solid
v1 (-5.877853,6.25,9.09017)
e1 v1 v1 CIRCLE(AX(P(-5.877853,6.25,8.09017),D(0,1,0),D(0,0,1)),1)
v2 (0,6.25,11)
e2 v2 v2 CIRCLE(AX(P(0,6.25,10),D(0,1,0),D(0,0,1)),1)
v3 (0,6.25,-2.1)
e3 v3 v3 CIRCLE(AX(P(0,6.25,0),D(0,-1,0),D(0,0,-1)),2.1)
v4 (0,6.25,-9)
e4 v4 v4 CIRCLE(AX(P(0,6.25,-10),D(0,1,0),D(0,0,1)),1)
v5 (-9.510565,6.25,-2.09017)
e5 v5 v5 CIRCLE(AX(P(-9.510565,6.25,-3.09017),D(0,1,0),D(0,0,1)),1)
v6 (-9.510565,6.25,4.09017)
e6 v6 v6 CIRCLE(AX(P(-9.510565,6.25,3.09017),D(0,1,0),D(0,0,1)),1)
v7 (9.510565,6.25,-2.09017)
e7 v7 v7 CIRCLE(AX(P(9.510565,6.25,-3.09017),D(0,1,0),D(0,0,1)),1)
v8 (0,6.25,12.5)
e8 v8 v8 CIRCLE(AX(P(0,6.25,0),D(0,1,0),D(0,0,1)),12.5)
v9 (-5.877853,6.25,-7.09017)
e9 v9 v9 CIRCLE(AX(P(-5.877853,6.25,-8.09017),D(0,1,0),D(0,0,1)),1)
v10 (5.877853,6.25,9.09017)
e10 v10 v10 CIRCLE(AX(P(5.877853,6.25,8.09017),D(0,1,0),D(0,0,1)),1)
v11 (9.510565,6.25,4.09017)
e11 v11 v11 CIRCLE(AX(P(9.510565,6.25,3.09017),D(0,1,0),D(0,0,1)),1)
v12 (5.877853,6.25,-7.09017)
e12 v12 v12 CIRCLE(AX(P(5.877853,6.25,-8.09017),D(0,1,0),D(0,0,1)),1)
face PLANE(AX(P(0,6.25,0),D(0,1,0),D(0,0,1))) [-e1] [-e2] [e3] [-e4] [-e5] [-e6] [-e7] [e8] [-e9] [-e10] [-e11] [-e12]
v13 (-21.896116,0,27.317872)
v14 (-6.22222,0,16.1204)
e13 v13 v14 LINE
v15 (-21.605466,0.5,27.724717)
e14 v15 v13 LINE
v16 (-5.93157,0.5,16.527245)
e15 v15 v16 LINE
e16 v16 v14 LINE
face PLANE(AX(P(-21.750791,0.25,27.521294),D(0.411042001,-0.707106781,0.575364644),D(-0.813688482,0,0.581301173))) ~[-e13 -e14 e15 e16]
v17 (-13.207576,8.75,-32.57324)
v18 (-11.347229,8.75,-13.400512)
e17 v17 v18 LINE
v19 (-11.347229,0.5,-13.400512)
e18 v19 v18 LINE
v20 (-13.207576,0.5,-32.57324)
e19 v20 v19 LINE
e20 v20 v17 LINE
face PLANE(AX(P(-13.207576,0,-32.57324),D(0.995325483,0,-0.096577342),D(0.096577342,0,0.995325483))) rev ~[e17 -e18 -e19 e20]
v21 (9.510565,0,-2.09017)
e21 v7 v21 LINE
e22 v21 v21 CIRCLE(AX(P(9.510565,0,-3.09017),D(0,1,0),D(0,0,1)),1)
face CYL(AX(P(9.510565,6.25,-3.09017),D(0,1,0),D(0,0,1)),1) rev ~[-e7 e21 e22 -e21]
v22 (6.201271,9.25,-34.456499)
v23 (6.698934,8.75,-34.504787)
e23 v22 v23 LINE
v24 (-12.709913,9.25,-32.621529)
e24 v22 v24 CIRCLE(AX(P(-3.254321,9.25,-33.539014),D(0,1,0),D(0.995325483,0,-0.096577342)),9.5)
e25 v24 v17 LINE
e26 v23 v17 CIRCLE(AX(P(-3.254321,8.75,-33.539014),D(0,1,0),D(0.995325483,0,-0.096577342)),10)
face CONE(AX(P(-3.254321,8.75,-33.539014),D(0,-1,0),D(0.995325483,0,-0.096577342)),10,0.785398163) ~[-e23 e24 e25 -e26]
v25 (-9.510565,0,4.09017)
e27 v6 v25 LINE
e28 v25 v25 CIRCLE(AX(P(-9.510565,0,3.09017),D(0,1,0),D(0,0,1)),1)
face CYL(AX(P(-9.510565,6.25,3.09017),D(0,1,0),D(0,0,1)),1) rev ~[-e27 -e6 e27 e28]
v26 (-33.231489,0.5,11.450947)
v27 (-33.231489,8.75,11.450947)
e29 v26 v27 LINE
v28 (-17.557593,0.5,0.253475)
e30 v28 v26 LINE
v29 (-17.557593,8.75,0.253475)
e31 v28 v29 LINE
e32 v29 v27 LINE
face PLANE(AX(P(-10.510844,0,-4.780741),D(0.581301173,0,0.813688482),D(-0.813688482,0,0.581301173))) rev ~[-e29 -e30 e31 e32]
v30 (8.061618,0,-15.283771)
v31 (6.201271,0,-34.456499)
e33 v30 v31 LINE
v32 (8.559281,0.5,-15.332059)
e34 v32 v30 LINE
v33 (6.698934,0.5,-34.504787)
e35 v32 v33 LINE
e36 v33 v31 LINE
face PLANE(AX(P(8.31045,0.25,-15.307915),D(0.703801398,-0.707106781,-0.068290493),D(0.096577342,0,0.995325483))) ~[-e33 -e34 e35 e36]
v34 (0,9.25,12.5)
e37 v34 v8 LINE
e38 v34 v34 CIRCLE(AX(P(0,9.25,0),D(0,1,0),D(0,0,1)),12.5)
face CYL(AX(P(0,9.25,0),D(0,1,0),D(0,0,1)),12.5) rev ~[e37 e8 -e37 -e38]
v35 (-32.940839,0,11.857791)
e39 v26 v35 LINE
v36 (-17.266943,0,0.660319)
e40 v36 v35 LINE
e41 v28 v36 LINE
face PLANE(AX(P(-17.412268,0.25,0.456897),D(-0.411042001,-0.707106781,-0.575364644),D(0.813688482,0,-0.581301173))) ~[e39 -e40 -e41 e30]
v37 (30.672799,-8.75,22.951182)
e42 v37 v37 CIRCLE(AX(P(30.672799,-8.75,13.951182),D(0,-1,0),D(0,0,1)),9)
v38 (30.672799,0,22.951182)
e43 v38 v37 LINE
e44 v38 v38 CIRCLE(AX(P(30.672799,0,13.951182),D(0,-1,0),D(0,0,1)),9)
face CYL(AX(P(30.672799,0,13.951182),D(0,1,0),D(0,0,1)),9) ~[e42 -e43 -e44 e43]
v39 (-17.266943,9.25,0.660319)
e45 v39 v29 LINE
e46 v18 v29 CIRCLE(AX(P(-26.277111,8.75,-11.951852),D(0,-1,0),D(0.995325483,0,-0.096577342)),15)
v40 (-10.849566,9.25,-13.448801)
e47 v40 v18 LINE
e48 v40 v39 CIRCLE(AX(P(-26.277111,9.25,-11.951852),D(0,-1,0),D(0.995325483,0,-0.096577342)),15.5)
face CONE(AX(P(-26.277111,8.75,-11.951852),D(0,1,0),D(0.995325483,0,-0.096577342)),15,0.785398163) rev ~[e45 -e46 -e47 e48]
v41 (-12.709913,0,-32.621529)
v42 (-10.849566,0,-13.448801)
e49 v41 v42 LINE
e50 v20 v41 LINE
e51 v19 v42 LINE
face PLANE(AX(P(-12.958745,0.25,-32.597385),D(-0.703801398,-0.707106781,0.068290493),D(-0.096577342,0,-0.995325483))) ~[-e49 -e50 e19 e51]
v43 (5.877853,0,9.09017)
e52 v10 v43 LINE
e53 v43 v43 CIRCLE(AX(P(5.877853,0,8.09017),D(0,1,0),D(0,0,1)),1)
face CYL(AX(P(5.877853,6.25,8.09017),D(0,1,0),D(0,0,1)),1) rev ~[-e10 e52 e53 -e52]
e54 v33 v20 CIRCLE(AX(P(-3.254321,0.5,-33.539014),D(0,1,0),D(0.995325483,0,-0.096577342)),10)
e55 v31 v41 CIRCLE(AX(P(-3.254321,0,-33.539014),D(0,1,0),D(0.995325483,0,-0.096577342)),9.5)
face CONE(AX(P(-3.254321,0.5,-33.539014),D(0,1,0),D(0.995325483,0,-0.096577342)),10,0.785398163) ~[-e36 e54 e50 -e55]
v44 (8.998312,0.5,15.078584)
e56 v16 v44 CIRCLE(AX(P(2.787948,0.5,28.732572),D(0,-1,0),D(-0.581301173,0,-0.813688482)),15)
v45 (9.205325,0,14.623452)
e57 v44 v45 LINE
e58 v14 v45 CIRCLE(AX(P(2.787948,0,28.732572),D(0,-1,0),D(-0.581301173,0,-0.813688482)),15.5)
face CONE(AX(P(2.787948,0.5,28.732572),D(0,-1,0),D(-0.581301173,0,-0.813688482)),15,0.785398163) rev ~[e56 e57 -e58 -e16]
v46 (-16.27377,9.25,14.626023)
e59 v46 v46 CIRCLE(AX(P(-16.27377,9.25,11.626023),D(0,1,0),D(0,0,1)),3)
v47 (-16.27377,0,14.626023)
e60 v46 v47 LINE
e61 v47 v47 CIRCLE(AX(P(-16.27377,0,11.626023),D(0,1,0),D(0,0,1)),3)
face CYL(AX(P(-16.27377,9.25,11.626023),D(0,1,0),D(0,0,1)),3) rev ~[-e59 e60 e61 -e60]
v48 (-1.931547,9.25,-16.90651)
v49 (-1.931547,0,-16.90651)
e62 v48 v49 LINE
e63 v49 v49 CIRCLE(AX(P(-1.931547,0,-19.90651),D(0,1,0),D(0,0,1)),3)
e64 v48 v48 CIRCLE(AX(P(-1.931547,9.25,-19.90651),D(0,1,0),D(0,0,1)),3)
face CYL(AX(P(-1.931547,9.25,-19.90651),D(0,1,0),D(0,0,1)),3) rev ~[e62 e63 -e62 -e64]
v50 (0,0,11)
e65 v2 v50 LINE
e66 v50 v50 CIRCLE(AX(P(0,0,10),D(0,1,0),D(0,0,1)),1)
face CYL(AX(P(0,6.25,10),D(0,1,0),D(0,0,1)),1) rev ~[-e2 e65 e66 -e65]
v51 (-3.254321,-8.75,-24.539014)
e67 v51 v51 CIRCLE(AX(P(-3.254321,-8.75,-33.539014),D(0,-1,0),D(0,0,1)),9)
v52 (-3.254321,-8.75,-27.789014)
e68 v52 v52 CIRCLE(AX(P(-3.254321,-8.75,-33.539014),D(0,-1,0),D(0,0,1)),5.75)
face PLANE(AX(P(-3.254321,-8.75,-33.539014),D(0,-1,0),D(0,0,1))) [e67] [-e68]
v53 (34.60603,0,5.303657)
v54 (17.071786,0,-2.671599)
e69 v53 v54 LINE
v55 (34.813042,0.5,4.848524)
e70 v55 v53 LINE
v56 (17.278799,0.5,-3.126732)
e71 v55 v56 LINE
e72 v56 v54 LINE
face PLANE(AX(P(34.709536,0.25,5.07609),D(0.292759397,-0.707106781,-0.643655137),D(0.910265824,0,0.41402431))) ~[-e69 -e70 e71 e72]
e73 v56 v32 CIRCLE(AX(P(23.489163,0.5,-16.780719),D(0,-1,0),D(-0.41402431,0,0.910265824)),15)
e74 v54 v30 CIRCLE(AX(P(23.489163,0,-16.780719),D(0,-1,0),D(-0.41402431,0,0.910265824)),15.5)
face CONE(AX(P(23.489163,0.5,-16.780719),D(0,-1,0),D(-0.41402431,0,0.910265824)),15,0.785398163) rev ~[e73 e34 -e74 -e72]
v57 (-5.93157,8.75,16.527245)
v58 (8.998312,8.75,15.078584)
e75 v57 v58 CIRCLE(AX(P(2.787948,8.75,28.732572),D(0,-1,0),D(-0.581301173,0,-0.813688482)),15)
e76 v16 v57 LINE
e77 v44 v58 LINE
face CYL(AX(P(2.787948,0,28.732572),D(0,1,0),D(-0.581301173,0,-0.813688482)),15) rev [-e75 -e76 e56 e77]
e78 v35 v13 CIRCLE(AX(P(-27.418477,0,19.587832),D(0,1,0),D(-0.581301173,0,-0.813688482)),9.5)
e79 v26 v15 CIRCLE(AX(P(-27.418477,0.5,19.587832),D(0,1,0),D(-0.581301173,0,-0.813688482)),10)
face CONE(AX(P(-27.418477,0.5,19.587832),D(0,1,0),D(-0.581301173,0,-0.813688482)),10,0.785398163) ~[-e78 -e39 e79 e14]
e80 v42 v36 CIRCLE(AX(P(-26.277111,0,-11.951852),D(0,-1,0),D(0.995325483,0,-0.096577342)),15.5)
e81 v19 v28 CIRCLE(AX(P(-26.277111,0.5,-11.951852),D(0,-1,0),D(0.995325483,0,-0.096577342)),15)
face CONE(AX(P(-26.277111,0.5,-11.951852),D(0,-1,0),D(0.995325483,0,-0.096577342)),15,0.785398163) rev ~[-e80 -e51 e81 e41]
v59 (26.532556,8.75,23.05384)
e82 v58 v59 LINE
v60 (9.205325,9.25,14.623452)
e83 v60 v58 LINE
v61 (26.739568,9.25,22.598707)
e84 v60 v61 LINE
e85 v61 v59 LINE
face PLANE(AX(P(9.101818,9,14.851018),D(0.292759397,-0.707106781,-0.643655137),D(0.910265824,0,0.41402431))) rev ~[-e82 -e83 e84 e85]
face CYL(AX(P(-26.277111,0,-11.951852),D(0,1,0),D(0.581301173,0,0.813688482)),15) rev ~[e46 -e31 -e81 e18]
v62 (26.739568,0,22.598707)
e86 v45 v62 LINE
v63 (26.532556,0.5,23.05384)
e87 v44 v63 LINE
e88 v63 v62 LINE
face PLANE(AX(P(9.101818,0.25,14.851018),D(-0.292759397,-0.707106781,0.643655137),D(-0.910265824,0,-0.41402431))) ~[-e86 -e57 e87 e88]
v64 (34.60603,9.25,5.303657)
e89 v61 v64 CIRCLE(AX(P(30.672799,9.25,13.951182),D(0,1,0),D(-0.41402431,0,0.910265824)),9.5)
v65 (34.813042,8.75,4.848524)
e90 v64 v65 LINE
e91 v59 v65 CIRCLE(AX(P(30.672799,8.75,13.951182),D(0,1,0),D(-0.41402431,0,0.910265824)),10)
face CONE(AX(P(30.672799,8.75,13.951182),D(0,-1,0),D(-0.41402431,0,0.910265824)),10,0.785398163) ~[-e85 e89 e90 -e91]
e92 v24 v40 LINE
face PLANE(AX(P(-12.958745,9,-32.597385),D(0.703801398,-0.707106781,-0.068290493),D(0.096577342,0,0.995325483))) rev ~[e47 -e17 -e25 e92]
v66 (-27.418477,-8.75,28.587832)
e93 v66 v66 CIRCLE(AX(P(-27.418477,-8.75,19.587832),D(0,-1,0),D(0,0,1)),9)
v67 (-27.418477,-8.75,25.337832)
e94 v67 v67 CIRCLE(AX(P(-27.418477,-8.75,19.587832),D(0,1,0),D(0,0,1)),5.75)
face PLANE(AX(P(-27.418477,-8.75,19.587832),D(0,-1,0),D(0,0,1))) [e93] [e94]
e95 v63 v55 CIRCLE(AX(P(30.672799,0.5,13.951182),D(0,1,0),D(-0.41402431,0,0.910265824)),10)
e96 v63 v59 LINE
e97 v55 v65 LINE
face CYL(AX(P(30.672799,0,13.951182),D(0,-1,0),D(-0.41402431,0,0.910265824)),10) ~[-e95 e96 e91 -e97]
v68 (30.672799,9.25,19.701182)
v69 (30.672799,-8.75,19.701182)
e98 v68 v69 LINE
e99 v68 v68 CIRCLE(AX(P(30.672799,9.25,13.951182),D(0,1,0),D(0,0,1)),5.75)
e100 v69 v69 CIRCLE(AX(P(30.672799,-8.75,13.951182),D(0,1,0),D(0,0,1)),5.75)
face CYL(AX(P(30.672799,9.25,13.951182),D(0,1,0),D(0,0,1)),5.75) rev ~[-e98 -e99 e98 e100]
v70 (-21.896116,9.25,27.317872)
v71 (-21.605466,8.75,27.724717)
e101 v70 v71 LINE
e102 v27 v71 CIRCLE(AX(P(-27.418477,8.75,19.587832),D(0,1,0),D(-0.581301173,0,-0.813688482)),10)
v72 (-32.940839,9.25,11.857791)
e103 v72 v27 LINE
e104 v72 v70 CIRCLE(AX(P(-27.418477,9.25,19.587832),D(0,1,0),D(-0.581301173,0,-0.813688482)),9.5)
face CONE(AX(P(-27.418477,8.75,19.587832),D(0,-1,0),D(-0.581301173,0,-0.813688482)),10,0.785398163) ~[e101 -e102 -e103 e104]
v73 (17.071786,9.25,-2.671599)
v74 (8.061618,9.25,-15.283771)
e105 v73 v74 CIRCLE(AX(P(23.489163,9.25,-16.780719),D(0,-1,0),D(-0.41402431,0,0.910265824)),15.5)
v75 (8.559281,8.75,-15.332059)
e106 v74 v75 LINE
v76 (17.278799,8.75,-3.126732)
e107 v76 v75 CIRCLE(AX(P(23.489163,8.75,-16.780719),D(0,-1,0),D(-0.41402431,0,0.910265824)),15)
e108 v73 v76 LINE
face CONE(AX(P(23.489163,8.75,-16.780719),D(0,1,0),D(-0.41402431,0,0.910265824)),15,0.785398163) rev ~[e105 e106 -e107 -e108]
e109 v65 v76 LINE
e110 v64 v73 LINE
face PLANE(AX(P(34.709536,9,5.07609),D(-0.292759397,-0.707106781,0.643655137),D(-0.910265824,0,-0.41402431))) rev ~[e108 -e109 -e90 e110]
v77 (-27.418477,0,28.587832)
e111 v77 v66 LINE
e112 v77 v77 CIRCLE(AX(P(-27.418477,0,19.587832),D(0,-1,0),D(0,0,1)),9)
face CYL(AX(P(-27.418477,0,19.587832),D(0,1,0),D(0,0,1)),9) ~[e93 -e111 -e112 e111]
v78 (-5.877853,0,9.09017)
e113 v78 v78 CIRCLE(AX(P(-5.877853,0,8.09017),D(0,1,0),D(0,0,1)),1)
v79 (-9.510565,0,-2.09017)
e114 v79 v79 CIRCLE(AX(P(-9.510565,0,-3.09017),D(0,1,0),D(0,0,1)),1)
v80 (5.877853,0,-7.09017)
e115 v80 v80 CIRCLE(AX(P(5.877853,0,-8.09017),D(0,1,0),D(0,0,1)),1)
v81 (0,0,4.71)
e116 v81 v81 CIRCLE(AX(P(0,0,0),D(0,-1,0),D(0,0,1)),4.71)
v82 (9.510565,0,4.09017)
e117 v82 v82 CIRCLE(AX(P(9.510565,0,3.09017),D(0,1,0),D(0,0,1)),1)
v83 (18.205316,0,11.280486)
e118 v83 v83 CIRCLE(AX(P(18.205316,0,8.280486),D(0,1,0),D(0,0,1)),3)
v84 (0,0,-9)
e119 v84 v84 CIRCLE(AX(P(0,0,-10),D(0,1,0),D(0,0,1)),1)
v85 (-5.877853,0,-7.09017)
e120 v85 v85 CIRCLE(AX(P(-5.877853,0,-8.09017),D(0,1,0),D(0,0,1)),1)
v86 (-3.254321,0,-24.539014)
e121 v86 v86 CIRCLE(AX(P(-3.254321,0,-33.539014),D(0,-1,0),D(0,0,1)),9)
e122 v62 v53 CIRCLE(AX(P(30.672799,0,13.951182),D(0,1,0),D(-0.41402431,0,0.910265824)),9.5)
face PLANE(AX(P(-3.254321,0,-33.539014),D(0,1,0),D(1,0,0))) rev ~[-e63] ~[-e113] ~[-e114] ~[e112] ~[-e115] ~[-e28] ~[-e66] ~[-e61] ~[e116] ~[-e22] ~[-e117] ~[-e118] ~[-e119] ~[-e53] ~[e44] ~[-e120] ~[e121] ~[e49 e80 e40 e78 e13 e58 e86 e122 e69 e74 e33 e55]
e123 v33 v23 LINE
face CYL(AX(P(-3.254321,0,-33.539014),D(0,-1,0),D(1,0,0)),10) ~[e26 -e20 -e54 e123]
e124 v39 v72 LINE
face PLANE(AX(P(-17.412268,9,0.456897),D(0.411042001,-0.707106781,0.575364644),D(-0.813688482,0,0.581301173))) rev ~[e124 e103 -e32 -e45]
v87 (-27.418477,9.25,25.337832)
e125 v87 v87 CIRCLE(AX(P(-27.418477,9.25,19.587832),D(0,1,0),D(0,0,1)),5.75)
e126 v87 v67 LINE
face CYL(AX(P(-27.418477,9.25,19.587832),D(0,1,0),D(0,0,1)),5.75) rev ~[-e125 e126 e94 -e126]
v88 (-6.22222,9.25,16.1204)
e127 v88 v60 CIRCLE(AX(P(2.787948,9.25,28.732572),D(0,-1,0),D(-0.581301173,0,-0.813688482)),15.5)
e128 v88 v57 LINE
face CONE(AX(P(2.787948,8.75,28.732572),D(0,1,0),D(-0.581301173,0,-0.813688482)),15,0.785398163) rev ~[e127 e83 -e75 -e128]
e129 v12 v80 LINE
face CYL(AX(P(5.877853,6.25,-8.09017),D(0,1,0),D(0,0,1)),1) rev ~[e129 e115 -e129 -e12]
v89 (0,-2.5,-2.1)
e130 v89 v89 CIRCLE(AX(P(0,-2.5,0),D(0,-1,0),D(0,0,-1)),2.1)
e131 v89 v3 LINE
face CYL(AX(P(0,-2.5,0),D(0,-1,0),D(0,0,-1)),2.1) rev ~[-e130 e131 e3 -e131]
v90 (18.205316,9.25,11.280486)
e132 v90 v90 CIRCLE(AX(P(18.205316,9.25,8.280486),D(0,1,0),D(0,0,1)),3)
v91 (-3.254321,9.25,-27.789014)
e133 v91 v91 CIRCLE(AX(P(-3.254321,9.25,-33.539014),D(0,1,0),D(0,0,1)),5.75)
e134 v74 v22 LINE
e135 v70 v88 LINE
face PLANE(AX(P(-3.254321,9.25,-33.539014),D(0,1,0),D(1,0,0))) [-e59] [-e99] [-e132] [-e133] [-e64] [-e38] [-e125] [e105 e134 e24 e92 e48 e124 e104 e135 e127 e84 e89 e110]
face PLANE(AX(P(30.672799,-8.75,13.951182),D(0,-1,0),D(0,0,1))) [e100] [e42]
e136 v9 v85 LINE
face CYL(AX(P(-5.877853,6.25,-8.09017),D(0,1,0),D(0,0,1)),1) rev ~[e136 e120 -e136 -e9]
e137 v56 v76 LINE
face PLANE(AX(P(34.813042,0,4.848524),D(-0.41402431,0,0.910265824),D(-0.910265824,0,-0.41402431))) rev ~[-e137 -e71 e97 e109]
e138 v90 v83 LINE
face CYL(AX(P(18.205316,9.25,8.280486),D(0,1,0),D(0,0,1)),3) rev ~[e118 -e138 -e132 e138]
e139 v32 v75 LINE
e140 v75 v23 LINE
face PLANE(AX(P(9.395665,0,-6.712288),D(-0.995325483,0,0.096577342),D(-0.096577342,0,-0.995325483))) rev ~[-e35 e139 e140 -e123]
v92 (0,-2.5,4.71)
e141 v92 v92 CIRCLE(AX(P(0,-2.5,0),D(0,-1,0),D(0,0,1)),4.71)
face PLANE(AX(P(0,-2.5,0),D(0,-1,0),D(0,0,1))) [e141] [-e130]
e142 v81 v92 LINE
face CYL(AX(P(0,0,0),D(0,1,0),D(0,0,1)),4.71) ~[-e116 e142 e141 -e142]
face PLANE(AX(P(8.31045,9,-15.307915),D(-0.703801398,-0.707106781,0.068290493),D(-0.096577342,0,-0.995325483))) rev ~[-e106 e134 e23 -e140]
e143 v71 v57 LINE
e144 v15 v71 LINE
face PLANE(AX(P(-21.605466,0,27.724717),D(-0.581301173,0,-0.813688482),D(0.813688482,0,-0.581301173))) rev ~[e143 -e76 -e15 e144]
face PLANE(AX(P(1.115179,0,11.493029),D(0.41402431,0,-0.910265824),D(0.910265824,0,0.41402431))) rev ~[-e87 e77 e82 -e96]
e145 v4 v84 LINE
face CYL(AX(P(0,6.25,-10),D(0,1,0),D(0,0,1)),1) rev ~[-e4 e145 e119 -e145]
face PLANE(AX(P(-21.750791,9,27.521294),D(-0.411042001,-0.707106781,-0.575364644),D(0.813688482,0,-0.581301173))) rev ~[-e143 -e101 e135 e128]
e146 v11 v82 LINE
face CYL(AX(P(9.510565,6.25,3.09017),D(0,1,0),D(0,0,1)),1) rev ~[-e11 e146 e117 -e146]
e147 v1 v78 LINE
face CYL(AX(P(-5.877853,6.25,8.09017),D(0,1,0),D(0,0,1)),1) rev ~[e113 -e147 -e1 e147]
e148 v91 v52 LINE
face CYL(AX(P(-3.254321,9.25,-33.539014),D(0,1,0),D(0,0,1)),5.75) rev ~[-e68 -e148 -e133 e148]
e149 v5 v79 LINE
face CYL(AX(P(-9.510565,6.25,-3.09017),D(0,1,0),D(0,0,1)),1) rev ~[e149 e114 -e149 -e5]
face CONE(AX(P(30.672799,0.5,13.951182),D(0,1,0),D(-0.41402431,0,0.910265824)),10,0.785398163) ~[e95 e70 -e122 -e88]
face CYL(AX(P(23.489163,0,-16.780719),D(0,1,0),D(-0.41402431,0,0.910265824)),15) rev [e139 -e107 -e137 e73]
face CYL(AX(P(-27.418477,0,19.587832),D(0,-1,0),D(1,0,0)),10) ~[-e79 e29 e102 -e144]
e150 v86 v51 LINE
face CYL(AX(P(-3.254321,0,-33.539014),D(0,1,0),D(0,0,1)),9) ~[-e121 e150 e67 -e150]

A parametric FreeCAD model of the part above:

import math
import FreeCAD as App
import Part
import Sketcher
from FreeCAD import Vector


def edges_at(feature, points):
    """Names of the edges that pass closest to the given points."""
    edges = feature.Shape.Edges
    near = lambda p: min(range(len(edges)), key=lambda i: edges[i].distToShape(Part.Vertex(*p))[0])
    return sorted({f"Edge{near(p) + 1}" for p in points})

doc = App.newDocument("Part")
body = doc.addObject("PartDesign::Body", "Body")

# Sketch on XZ plane
sketch1 = body.newObject("Sketcher::SketchObject", "Sketch")
sketch1.AttachmentSupport = (doc.getObject("XZ_Plane"), [""])
sketch1.MapMode = "FlatFace"
sketch1.addGeometry([
    Part.ArcOfCircle(Part.Circle(Vector(-3.254321, -33.539014, 0), Vector(0, 0, 1), 10), math.radians(174.457888), math.radians(354.457888)),  # 0
    Part.LineSegment(Vector(-13.207576, -32.57324, 0), Vector(-10.510844, -4.780741, 0)),  # 1
    Part.LineSegment(Vector(-10.510844, -4.780741, 0), Vector(-33.231489, 11.450947, 0)),  # 2
    Part.ArcOfCircle(Part.Circle(Vector(-27.418477, 19.587832, 0), Vector(0, 0, 1), 10), math.radians(54.457888), math.radians(234.457888)),  # 3
    Part.LineSegment(Vector(-21.605466, 27.724717, 0), Vector(1.115179, 11.493029, 0)),  # 4
    Part.LineSegment(Vector(1.115179, 11.493029, 0), Vector(26.532556, 23.05384, 0)),  # 5
    Part.ArcOfCircle(Part.Circle(Vector(30.672799, 13.951182, 0), Vector(0, 0, 1), 10), math.radians(-65.542112), math.radians(114.457888)),  # 6
    Part.LineSegment(Vector(34.813042, 4.848524, 0), Vector(9.395665, -6.712288, 0)),  # 7
    Part.LineSegment(Vector(9.395665, -6.712288, 0), Vector(6.698934, -34.504787, 0)),  # 8
], False)
sketch1.addConstraint([
    Sketcher.Constraint("Tangent", 0, 1, 1, 1),
    Sketcher.Constraint("Coincident", 1, 2, 2, 1),
    Sketcher.Constraint("Tangent", 2, 2, 3, 2),
    Sketcher.Constraint("Tangent", 3, 1, 4, 1),
    Sketcher.Constraint("Coincident", 4, 2, 5, 1),
    Sketcher.Constraint("Tangent", 5, 2, 6, 2),
    Sketcher.Constraint("Tangent", 6, 1, 7, 1),
    Sketcher.Constraint("Coincident", 7, 2, 8, 1),
    Sketcher.Constraint("Tangent", 8, 2, 0, 2),
    Sketcher.Constraint("Equal", 0, 3),
    Sketcher.Constraint("Equal", 3, 6),
    Sketcher.Constraint("Parallel", 2, 4),
    Sketcher.Constraint("Parallel", 5, 7),
    Sketcher.Constraint("Parallel", 1, 8),
    Sketcher.Constraint("Equal", 1, 2),
    Sketcher.Constraint("Equal", 2, 4),
    Sketcher.Constraint("Equal", 4, 5),
    Sketcher.Constraint("Equal", 5, 7),
    Sketcher.Constraint("Equal", 7, 8),
    Sketcher.Constraint("Radius", 0, 10.0),
    Sketcher.Constraint("DistanceX", -1, 1, 6, 3, 30.672799),
    Sketcher.Constraint("DistanceX", 3, 3, 0, 1, 14.210901),
    Sketcher.Constraint("DistanceY", 0, 1, 1, 2, 27.792499),
    Sketcher.Constraint("DistanceY", -1, 1, 3, 3, 19.587832),
])
pad1 = body.newObject("PartDesign::Pad", "Pad")
pad1.Profile = sketch1
pad1.Length = 9.25
pad1.Reversed = True

# Sketch on XZ plane
sketch2 = body.newObject("Sketcher::SketchObject", "Sketch001")
sketch2.AttachmentSupport = (doc.getObject("XZ_Plane"), [""])
sketch2.MapMode = "FlatFace"
sketch2.AttachmentOffset = App.Placement(Vector(0, 0, -9.25), App.Rotation())
sketch2.addGeometry(Part.Circle(Vector(-27.418477, 19.587832, 0), Vector(0, 0, 1), 4.5), False)
sketch2.addConstraint([
    Sketcher.Constraint("Diameter", 0, 9.0),
    Sketcher.Constraint("DistanceY", -1, 1, 0, 3, 19.587832),
    Sketcher.Constraint("DistanceX", 0, 3, -1, 1, 27.418477),
])
pocket1 = body.newObject("PartDesign::Pocket", "Pocket")
pocket1.Profile = sketch2
pocket1.Type = "UpToFirst"
pocket1.Reversed = True

# Sketch on XZ plane
sketch3 = body.newObject("Sketcher::SketchObject", "Sketch002")
sketch3.AttachmentSupport = (doc.getObject("XZ_Plane"), [""])
sketch3.MapMode = "FlatFace"
sketch3.AttachmentOffset = App.Placement(Vector(0, 0, -9.25), App.Rotation())
sketch3.addGeometry(Part.Circle(Vector(-3.254321, -33.539014, 0), Vector(0, 0, 1), 4.5), False)
sketch3.addConstraint([
    Sketcher.Constraint("Diameter", 0, 9.0),
    Sketcher.Constraint("DistanceX", 0, 3, -1, 1, 3.254321),
    Sketcher.Constraint("DistanceY", 0, 3, -1, 1, 33.539014),
])
pocket2 = body.newObject("PartDesign::Pocket", "Pocket001")
pocket2.Profile = sketch3
pocket2.Type = "UpToFirst"
pocket2.Reversed = True

# Sketch on XZ plane
sketch4 = body.newObject("Sketcher::SketchObject", "Sketch003")
sketch4.AttachmentSupport = (doc.getObject("XZ_Plane"), [""])
sketch4.MapMode = "FlatFace"
sketch4.AttachmentOffset = App.Placement(Vector(0, 0, -9.25), App.Rotation())
sketch4.addGeometry(Part.Circle(Vector(30.672799, 13.951182, 0), Vector(0, 0, 1), 4.5), False)
sketch4.addConstraint([
    Sketcher.Constraint("Diameter", 0, 9.0),
    Sketcher.Constraint("DistanceX", -1, 1, 0, 3, 30.672799),
    Sketcher.Constraint("DistanceY", -1, 1, 0, 3, 13.951182),
])
pocket3 = body.newObject("PartDesign::Pocket", "Pocket002")
pocket3.Profile = sketch4
pocket3.Type = "UpToFirst"
pocket3.Reversed = True

# Sketch on XZ plane
sketch5 = body.newObject("Sketcher::SketchObject", "Sketch004")
sketch5.AttachmentSupport = (doc.getObject("XZ_Plane"), [""])
sketch5.MapMode = "FlatFace"
sketch5.addGeometry([
    Part.Circle(Vector(-3.254321, -33.539014, 0), Vector(0, 0, 1), 9),
    Part.Circle(Vector(-27.418477, 19.587832, 0), Vector(0, 0, 1), 9),
    Part.Circle(Vector(30.672799, 13.951182, 0), Vector(0, 0, 1), 9),
], False)
sketch5.addConstraint([
    Sketcher.Constraint("Equal", 0, 1),
    Sketcher.Constraint("Equal", 1, 2),
    Sketcher.Constraint("Diameter", 0, 18.0),
    Sketcher.Constraint("DistanceX", -1, 1, 2, 3, 30.672799),
    Sketcher.Constraint("DistanceX", 0, 3, -1, 1, 3.254321),
    Sketcher.Constraint("DistanceY", -1, 1, 1, 3, 19.587832),
    Sketcher.Constraint("DistanceY", 2, 3, 1, 3, 5.63665),
    Sketcher.Constraint("DistanceY", 0, 3, -1, 1, 33.539014),
    Sketcher.Constraint("DistanceX", 1, 3, -1, 1, 27.418477),
])
pad2 = body.newObject("PartDesign::Pad", "Pad001")
pad2.Profile = sketch5
pad2.Length = 9.5

# Sketch on XZ plane
sketch6 = body.newObject("Sketcher::SketchObject", "Sketch005")
sketch6.AttachmentSupport = (doc.getObject("XZ_Plane"), [""])
sketch6.MapMode = "FlatFace"
sketch6.addGeometry(Part.Circle(Vector(-3.254321, -33.539014, 0), Vector(0, 0, 1), 4.5), False)
sketch6.addConstraint([
    Sketcher.Constraint("Diameter", 0, 9.0),
    Sketcher.Constraint("DistanceX", 0, 3, -1, 1, 3.254321),
    Sketcher.Constraint("DistanceY", 0, 3, -1, 1, 33.539014),
])
pocket4 = body.newObject("PartDesign::Pocket", "Pocket003")
pocket4.Profile = sketch6
pocket4.Type = "UpToFirst"
pocket4.Reversed = True

# Sketch on XZ plane
sketch7 = body.newObject("Sketcher::SketchObject", "Sketch006")
sketch7.AttachmentSupport = (doc.getObject("XZ_Plane"), [""])
sketch7.MapMode = "FlatFace"
sketch7.addGeometry(Part.Circle(Vector(30.672799, 13.951182, 0), Vector(0, 0, 1), 4.5), False)
sketch7.addConstraint([
    Sketcher.Constraint("Diameter", 0, 9.0),
    Sketcher.Constraint("DistanceX", -1, 1, 0, 3, 30.672799),
    Sketcher.Constraint("DistanceY", -1, 1, 0, 3, 13.951182),
])
pocket5 = body.newObject("PartDesign::Pocket", "Pocket004")
pocket5.Profile = sketch7
pocket5.Type = "UpToFirst"
pocket5.Reversed = True

# Sketch on XZ plane
sketch8 = body.newObject("Sketcher::SketchObject", "Sketch007")
sketch8.AttachmentSupport = (doc.getObject("XZ_Plane"), [""])
sketch8.MapMode = "FlatFace"
sketch8.addGeometry(Part.Circle(Vector(-27.418477, 19.587832, 0), Vector(0, 0, 1), 4.5), False)
sketch8.addConstraint([
    Sketcher.Constraint("Diameter", 0, 9.0),
    Sketcher.Constraint("DistanceY", -1, 1, 0, 3, 19.587832),
    Sketcher.Constraint("DistanceX", 0, 3, -1, 1, 27.418477),
])
pocket6 = body.newObject("PartDesign::Pocket", "Pocket005")
pocket6.Profile = sketch8
pocket6.Type = "UpToFirst"
pocket6.Reversed = True
doc.recompute()

fillet = body.newObject("PartDesign::Fillet", "Fillet")
fillet.Base = (pocket6, edges_at(pocket6, [(9.396, 4.625, -6.712), (1.115, 4.625, 11.493), (-10.511, 4.625, -4.781)]))
fillet.Radius = 15

# Sketch on XZ plane
sketch9 = body.newObject("Sketcher::SketchObject", "Sketch008")
sketch9.AttachmentSupport = (doc.getObject("XZ_Plane"), [""])
sketch9.MapMode = "FlatFace"
sketch9.AttachmentOffset = App.Placement(Vector(0, 0, -9.25), App.Rotation())
sketch9.addGeometry(Part.Circle(Vector(0, 0, 0), Vector(0, 0, 1), 12.5), False)
sketch9.addConstraint([
    Sketcher.Constraint("Coincident", 0, 3, -1, 1),
    Sketcher.Constraint("Diameter", 0, 25.0),
])
pocket7 = body.newObject("PartDesign::Pocket", "Pocket006")
pocket7.Profile = sketch9
pocket7.Length = 3
pocket7.Reversed = True
doc.recompute()

chamfer = body.newObject("PartDesign::Chamfer", "Chamfer")
chamfer.Base = (pocket7, edges_at(pocket7, [
    (-12.277, 9.25, -22.987),
    (-25.395, 9.25, 5.852),
    (-35.555, 9.25, 25.401),
    (-13.769, 9.25, 22.126),
    (17.765, 9.25, 19.066),
    (39.775, 9.25, 18.091),
    (26.046, 9.25, 0.861),
    (7.629, 9.25, -24.918),
    (-4.22, 9.25, -43.492),
    (11.284, 9.25, -8.061),
    (1.339, 9.25, 13.803),
    (-12.623, 9.25, -5.741),
]))
chamfer.Size = 0.5
doc.recompute()

chamfer2 = body.newObject("PartDesign::Chamfer", "Chamfer001")
chamfer2.Base = (chamfer, edges_at(chamfer, [
    (39.775, 0, 18.091),
    (17.765, 0, 19.066),
    (-13.769, 0, 22.126),
    (-35.555, 0, 25.401),
    (-25.395, 0, 5.852),
    (-12.277, 0, -22.987),
    (-4.22, 0, -43.492),
    (7.629, 0, -24.918),
    (11.284, 0, -8.061),
    (1.339, 0, 13.803),
    (-12.623, 0, -5.741),
    (26.046, 0, 0.861),
]))
chamfer2.Size = 0.5

# Sketch on XZ plane
sketch10 = body.newObject("Sketcher::SketchObject", "Sketch009")
sketch10.AttachmentSupport = (doc.getObject("XZ_Plane"), [""])
sketch10.MapMode = "FlatFace"
sketch10.addGeometry(Part.Circle(Vector(0, 0, 0), Vector(0, 0, 1), 4.71), False)
sketch10.addConstraint([
    Sketcher.Constraint("Coincident", 0, 3, -1, 1),
    Sketcher.Constraint("Diameter", 0, 9.42),
])
pad3 = body.newObject("PartDesign::Pad", "Pad002")
pad3.Profile = sketch10
pad3.Length = 2.5

# Sketch on XZ plane
sketch11 = body.newObject("Sketcher::SketchObject", "Sketch010")
sketch11.AttachmentSupport = (doc.getObject("XZ_Plane"), [""])
sketch11.MapMode = "FlatFace"
sketch11.AttachmentOffset = App.Placement(Vector(0, 0, -6.25), App.Rotation())
sketch11.addGeometry(Part.Circle(Vector(0, -10, 0), Vector(0, 0, 1), 1), False)
sketch11.addConstraint([
    Sketcher.Constraint("PointOnObject", 0, 3, -2),
    Sketcher.Constraint("Diameter", 0, 2.0),
    Sketcher.Constraint("DistanceY", 0, 3, -1, 1, 10.0),
])
pocket8 = body.newObject("PartDesign::Pocket", "Pocket007")
pocket8.Profile = sketch11
pocket8.Type = "UpToFirst"
pocket8.Reversed = True

# Sketch on XZ plane
sketch12 = body.newObject("Sketcher::SketchObject", "Sketch011")
sketch12.AttachmentSupport = (doc.getObject("XZ_Plane"), [""])
sketch12.MapMode = "FlatFace"
sketch12.AttachmentOffset = App.Placement(Vector(0, 0, -6.25), App.Rotation())
sketch12.addGeometry(Part.Circle(Vector(5.877853, -8.09017, 0), Vector(0, 0, 1), 1), False)
sketch12.addConstraint([
    Sketcher.Constraint("Diameter", 0, 2.0),
    Sketcher.Constraint("DistanceY", 0, 3, -1, 1, 8.09017),
    Sketcher.Constraint("DistanceX", -1, 1, 0, 3, 5.877853),
])
pocket9 = body.newObject("PartDesign::Pocket", "Pocket008")
pocket9.Profile = sketch12
pocket9.Type = "UpToFirst"
pocket9.Reversed = True

# Sketch on XZ plane
sketch13 = body.newObject("Sketcher::SketchObject", "Sketch012")
sketch13.AttachmentSupport = (doc.getObject("XZ_Plane"), [""])
sketch13.MapMode = "FlatFace"
sketch13.AttachmentOffset = App.Placement(Vector(0, 0, -6.25), App.Rotation())
sketch13.addGeometry(Part.Circle(Vector(9.510565, -3.09017, 0), Vector(0, 0, 1), 1), False)
sketch13.addConstraint([
    Sketcher.Constraint("Diameter", 0, 2.0),
    Sketcher.Constraint("DistanceY", 0, 3, -1, 1, 3.09017),
    Sketcher.Constraint("DistanceX", -1, 1, 0, 3, 9.510565),
])
pocket10 = body.newObject("PartDesign::Pocket", "Pocket009")
pocket10.Profile = sketch13
pocket10.Type = "UpToFirst"
pocket10.Reversed = True

# Sketch on XZ plane
sketch14 = body.newObject("Sketcher::SketchObject", "Sketch013")
sketch14.AttachmentSupport = (doc.getObject("XZ_Plane"), [""])
sketch14.MapMode = "FlatFace"
sketch14.AttachmentOffset = App.Placement(Vector(0, 0, -6.25), App.Rotation())
sketch14.addGeometry(Part.Circle(Vector(9.510565, 3.09017, 0), Vector(0, 0, 1), 1), False)
sketch14.addConstraint([
    Sketcher.Constraint("Diameter", 0, 2.0),
    Sketcher.Constraint("DistanceY", -1, 1, 0, 3, 3.09017),
    Sketcher.Constraint("DistanceX", -1, 1, 0, 3, 9.510565),
])
pocket11 = body.newObject("PartDesign::Pocket", "Pocket010")
pocket11.Profile = sketch14
pocket11.Type = "UpToFirst"
pocket11.Reversed = True

# Sketch on XZ plane
sketch15 = body.newObject("Sketcher::SketchObject", "Sketch014")
sketch15.AttachmentSupport = (doc.getObject("XZ_Plane"), [""])
sketch15.MapMode = "FlatFace"
sketch15.AttachmentOffset = App.Placement(Vector(0, 0, -6.25), App.Rotation())
sketch15.addGeometry(Part.Circle(Vector(5.877853, 8.09017, 0), Vector(0, 0, 1), 1), False)
sketch15.addConstraint([
    Sketcher.Constraint("Diameter", 0, 2.0),
    Sketcher.Constraint("DistanceY", -1, 1, 0, 3, 8.09017),
    Sketcher.Constraint("DistanceX", -1, 1, 0, 3, 5.877853),
])
pocket12 = body.newObject("PartDesign::Pocket", "Pocket011")
pocket12.Profile = sketch15
pocket12.Type = "UpToFirst"
pocket12.Reversed = True

# Sketch on XZ plane
sketch16 = body.newObject("Sketcher::SketchObject", "Sketch015")
sketch16.AttachmentSupport = (doc.getObject("XZ_Plane"), [""])
sketch16.MapMode = "FlatFace"
sketch16.AttachmentOffset = App.Placement(Vector(0, 0, -6.25), App.Rotation())
sketch16.addGeometry(Part.Circle(Vector(0, 10, 0), Vector(0, 0, 1), 1), False)
sketch16.addConstraint([
    Sketcher.Constraint("PointOnObject", 0, 3, -2),
    Sketcher.Constraint("Diameter", 0, 2.0),
    Sketcher.Constraint("DistanceY", -1, 1, 0, 3, 10.0),
])
pocket13 = body.newObject("PartDesign::Pocket", "Pocket012")
pocket13.Profile = sketch16
pocket13.Type = "UpToFirst"
pocket13.Reversed = True

# Sketch on XZ plane
sketch17 = body.newObject("Sketcher::SketchObject", "Sketch016")
sketch17.AttachmentSupport = (doc.getObject("XZ_Plane"), [""])
sketch17.MapMode = "FlatFace"
sketch17.AttachmentOffset = App.Placement(Vector(0, 0, -6.25), App.Rotation())
sketch17.addGeometry(Part.Circle(Vector(-5.877853, 8.09017, 0), Vector(0, 0, 1), 1), False)
sketch17.addConstraint([
    Sketcher.Constraint("Diameter", 0, 2.0),
    Sketcher.Constraint("DistanceY", -1, 1, 0, 3, 8.09017),
    Sketcher.Constraint("DistanceX", 0, 3, -1, 1, 5.877853),
])
pocket14 = body.newObject("PartDesign::Pocket", "Pocket013")
pocket14.Profile = sketch17
pocket14.Type = "UpToFirst"
pocket14.Reversed = True

# Sketch on XZ plane
sketch18 = body.newObject("Sketcher::SketchObject", "Sketch017")
sketch18.AttachmentSupport = (doc.getObject("XZ_Plane"), [""])
sketch18.MapMode = "FlatFace"
sketch18.AttachmentOffset = App.Placement(Vector(0, 0, -6.25), App.Rotation())
sketch18.addGeometry(Part.Circle(Vector(-9.510565, 3.09017, 0), Vector(0, 0, 1), 1), False)
sketch18.addConstraint([
    Sketcher.Constraint("Diameter", 0, 2.0),
    Sketcher.Constraint("DistanceY", -1, 1, 0, 3, 3.09017),
    Sketcher.Constraint("DistanceX", 0, 3, -1, 1, 9.510565),
])
pocket15 = body.newObject("PartDesign::Pocket", "Pocket014")
pocket15.Profile = sketch18
pocket15.Type = "UpToFirst"
pocket15.Reversed = True

# Sketch on XZ plane
sketch19 = body.newObject("Sketcher::SketchObject", "Sketch018")
sketch19.AttachmentSupport = (doc.getObject("XZ_Plane"), [""])
sketch19.MapMode = "FlatFace"
sketch19.AttachmentOffset = App.Placement(Vector(0, 0, -6.25), App.Rotation())
sketch19.addGeometry(Part.Circle(Vector(-9.510565, -3.09017, 0), Vector(0, 0, 1), 1), False)
sketch19.addConstraint([
    Sketcher.Constraint("Diameter", 0, 2.0),
    Sketcher.Constraint("DistanceY", 0, 3, -1, 1, 3.09017),
    Sketcher.Constraint("DistanceX", 0, 3, -1, 1, 9.510565),
])
pocket16 = body.newObject("PartDesign::Pocket", "Pocket015")
pocket16.Profile = sketch19
pocket16.Type = "UpToFirst"
pocket16.Reversed = True

# Sketch on XZ plane
sketch20 = body.newObject("Sketcher::SketchObject", "Sketch019")
sketch20.AttachmentSupport = (doc.getObject("XZ_Plane"), [""])
sketch20.MapMode = "FlatFace"
sketch20.AttachmentOffset = App.Placement(Vector(0, 0, -6.25), App.Rotation())
sketch20.addGeometry(Part.Circle(Vector(-5.877853, -8.09017, 0), Vector(0, 0, 1), 1), False)
sketch20.addConstraint([
    Sketcher.Constraint("Diameter", 0, 2.0),
    Sketcher.Constraint("DistanceY", 0, 3, -1, 1, 8.09017),
    Sketcher.Constraint("DistanceX", 0, 3, -1, 1, 5.877853),
])
pocket17 = body.newObject("PartDesign::Pocket", "Pocket016")
pocket17.Profile = sketch20
pocket17.Type = "UpToFirst"
pocket17.Reversed = True

# Sketch on XZ plane
sketch21 = body.newObject("Sketcher::SketchObject", "Sketch020")
sketch21.AttachmentSupport = (doc.getObject("XZ_Plane"), [""])
sketch21.MapMode = "FlatFace"
sketch21.AttachmentOffset = App.Placement(Vector(0, 0, 2.5), App.Rotation())
sketch21.addGeometry(Part.Circle(Vector(0, 0, 0), Vector(0, 0, 1), 2.1), False)
sketch21.addConstraint([
    Sketcher.Constraint("Coincident", 0, 3, -1, 1),
    Sketcher.Constraint("Diameter", 0, 4.2),
])
pocket18 = body.newObject("PartDesign::Pocket", "Pocket017")
pocket18.Profile = sketch21
pocket18.Type = "UpToFirst"

# Sketch on XZ plane
sketch22 = body.newObject("Sketcher::SketchObject", "Sketch021")
sketch22.AttachmentSupport = (doc.getObject("XZ_Plane"), [""])
sketch22.MapMode = "FlatFace"
sketch22.AttachmentOffset = App.Placement(Vector(0, 0, -9.25), App.Rotation())
sketch22.addGeometry(Part.Circle(Vector(-1.931547, -19.90651, 0), Vector(0, 0, 1), 3), False)
sketch22.addConstraint([
    Sketcher.Constraint("Diameter", 0, 6.0),
    Sketcher.Constraint("DistanceY", 0, 3, -1, 1, 19.90651),
    Sketcher.Constraint("DistanceX", 0, 3, -1, 1, 1.931547),
])
pocket19 = body.newObject("PartDesign::Pocket", "Pocket018")
pocket19.Profile = sketch22
pocket19.Type = "UpToFirst"
pocket19.Reversed = True

# Sketch on XZ plane
sketch23 = body.newObject("Sketcher::SketchObject", "Sketch022")
sketch23.AttachmentSupport = (doc.getObject("XZ_Plane"), [""])
sketch23.MapMode = "FlatFace"
sketch23.AttachmentOffset = App.Placement(Vector(0, 0, -9.25), App.Rotation())
sketch23.addGeometry(Part.Circle(Vector(18.205316, 8.280486, 0), Vector(0, 0, 1), 3), False)
sketch23.addConstraint([
    Sketcher.Constraint("Diameter", 0, 6.0),
    Sketcher.Constraint("DistanceX", -1, 1, 0, 3, 18.205316),
    Sketcher.Constraint("DistanceY", -1, 1, 0, 3, 8.280486),
])
pocket20 = body.newObject("PartDesign::Pocket", "Pocket019")
pocket20.Profile = sketch23
pocket20.Type = "UpToFirst"
pocket20.Reversed = True

# Sketch on XZ plane
sketch24 = body.newObject("Sketcher::SketchObject", "Sketch023")
sketch24.AttachmentSupport = (doc.getObject("XZ_Plane"), [""])
sketch24.MapMode = "FlatFace"
sketch24.AttachmentOffset = App.Placement(Vector(0, 0, -9.25), App.Rotation())
sketch24.addGeometry(Part.Circle(Vector(-16.27377, 11.626023, 0), Vector(0, 0, 1), 3), False)
sketch24.addConstraint([
    Sketcher.Constraint("Diameter", 0, 6.0),
    Sketcher.Constraint("DistanceX", 0, 3, -1, 1, 16.27377),
    Sketcher.Constraint("DistanceY", -1, 1, 0, 3, 11.626023),
])
pocket21 = body.newObject("PartDesign::Pocket", "Pocket020")
pocket21.Profile = sketch24
pocket21.Type = "UpToFirst"
pocket21.Reversed = True

# Sketch on XZ plane
sketch25 = body.newObject("Sketcher::SketchObject", "Sketch024")
sketch25.AttachmentSupport = (doc.getObject("XZ_Plane"), [""])
sketch25.MapMode = "FlatFace"
sketch25.AttachmentOffset = App.Placement(Vector(0, 0, -9.25), App.Rotation())
sketch25.addGeometry(Part.Circle(Vector(-3.254321, -33.539014, 0), Vector(0, 0, 1), 5.75), False)
sketch25.addConstraint([
    Sketcher.Constraint("Diameter", 0, 11.5),
    Sketcher.Constraint("DistanceX", 0, 3, -1, 1, 3.254321),
    Sketcher.Constraint("DistanceY", 0, 3, -1, 1, 33.539014),
])
pocket22 = body.newObject("PartDesign::Pocket", "Pocket021")
pocket22.Profile = sketch25
pocket22.Length = 18.75
pocket22.Reversed = True

# Sketch on XZ plane
sketch26 = body.newObject("Sketcher::SketchObject", "Sketch025")
sketch26.AttachmentSupport = (doc.getObject("XZ_Plane"), [""])
sketch26.MapMode = "FlatFace"
sketch26.AttachmentOffset = App.Placement(Vector(0, 0, -9.25), App.Rotation())
sketch26.addGeometry(Part.Circle(Vector(30.672799, 13.951182, 0), Vector(0, 0, 1), 5.75), False)
sketch26.addConstraint([
    Sketcher.Constraint("Diameter", 0, 11.5),
    Sketcher.Constraint("DistanceX", -1, 1, 0, 3, 30.672799),
    Sketcher.Constraint("DistanceY", -1, 1, 0, 3, 13.951182),
])
pocket23 = body.newObject("PartDesign::Pocket", "Pocket022")
pocket23.Profile = sketch26
pocket23.Length = 18.75
pocket23.Reversed = True

# Sketch on XZ plane
sketch27 = body.newObject("Sketcher::SketchObject", "Sketch026")
sketch27.AttachmentSupport = (doc.getObject("XZ_Plane"), [""])
sketch27.MapMode = "FlatFace"
sketch27.AttachmentOffset = App.Placement(Vector(0, 0, -9.25), App.Rotation())
sketch27.addGeometry(Part.Circle(Vector(-27.418477, 19.587832, 0), Vector(0, 0, 1), 5.75), False)
sketch27.addConstraint([
    Sketcher.Constraint("Diameter", 0, 11.5),
    Sketcher.Constraint("DistanceY", -1, 1, 0, 3, 19.587832),
    Sketcher.Constraint("DistanceX", 0, 3, -1, 1, 27.418477),
])
pocket24 = body.newObject("PartDesign::Pocket", "Pocket023")
pocket24.Profile = sketch27
pocket24.Length = 18.75
pocket24.Reversed = True

# Sketch on XZ plane
sketch28 = body.newObject("Sketcher::SketchObject", "Sketch027")
sketch28.AttachmentSupport = (doc.getObject("XZ_Plane"), [""])
sketch28.MapMode = "FlatFace"
sketch28.AttachmentOffset = App.Placement(Vector(0, 0, 8.75), App.Rotation())
sketch28.addGeometry([
    Part.Circle(Vector(-3.254321, -33.539014, 0), Vector(0, 0, 1), 9),
    Part.Circle(Vector(-3.254321, -33.539014, 0), Vector(0, 0, 1), 5.75),
    Part.Circle(Vector(-27.418477, 19.587832, 0), Vector(0, 0, 1), 9),
    Part.Circle(Vector(30.672799, 13.951182, 0), Vector(0, 0, 1), 9),
], False)
sketch28.addConstraint([
    Sketcher.Constraint("Coincident", 1, 3, 0, 3),
    Sketcher.Constraint("Equal", 0, 2),
    Sketcher.Constraint("Equal", 2, 3),
    Sketcher.Constraint("Diameter", 0, 18.0),
    Sketcher.Constraint("Diameter", 1, 11.5),
    Sketcher.Constraint("DistanceX", -1, 1, 3, 3, 30.672799),
    Sketcher.Constraint("DistanceX", 0, 3, -1, 1, 3.254321),
    Sketcher.Constraint("DistanceY", -1, 1, 2, 3, 19.587832),
    Sketcher.Constraint("DistanceY", 3, 3, 2, 3, 5.63665),
    Sketcher.Constraint("DistanceY", 0, 3, -1, 1, 33.539014),
    Sketcher.Constraint("DistanceX", 2, 3, -1, 1, 27.418477),
])
pocket25 = body.newObject("PartDesign::Pocket", "Pocket024")
pocket25.Profile = sketch28
pocket25.Length = 0.75
pocket25.Reversed = True

doc.recompute()
